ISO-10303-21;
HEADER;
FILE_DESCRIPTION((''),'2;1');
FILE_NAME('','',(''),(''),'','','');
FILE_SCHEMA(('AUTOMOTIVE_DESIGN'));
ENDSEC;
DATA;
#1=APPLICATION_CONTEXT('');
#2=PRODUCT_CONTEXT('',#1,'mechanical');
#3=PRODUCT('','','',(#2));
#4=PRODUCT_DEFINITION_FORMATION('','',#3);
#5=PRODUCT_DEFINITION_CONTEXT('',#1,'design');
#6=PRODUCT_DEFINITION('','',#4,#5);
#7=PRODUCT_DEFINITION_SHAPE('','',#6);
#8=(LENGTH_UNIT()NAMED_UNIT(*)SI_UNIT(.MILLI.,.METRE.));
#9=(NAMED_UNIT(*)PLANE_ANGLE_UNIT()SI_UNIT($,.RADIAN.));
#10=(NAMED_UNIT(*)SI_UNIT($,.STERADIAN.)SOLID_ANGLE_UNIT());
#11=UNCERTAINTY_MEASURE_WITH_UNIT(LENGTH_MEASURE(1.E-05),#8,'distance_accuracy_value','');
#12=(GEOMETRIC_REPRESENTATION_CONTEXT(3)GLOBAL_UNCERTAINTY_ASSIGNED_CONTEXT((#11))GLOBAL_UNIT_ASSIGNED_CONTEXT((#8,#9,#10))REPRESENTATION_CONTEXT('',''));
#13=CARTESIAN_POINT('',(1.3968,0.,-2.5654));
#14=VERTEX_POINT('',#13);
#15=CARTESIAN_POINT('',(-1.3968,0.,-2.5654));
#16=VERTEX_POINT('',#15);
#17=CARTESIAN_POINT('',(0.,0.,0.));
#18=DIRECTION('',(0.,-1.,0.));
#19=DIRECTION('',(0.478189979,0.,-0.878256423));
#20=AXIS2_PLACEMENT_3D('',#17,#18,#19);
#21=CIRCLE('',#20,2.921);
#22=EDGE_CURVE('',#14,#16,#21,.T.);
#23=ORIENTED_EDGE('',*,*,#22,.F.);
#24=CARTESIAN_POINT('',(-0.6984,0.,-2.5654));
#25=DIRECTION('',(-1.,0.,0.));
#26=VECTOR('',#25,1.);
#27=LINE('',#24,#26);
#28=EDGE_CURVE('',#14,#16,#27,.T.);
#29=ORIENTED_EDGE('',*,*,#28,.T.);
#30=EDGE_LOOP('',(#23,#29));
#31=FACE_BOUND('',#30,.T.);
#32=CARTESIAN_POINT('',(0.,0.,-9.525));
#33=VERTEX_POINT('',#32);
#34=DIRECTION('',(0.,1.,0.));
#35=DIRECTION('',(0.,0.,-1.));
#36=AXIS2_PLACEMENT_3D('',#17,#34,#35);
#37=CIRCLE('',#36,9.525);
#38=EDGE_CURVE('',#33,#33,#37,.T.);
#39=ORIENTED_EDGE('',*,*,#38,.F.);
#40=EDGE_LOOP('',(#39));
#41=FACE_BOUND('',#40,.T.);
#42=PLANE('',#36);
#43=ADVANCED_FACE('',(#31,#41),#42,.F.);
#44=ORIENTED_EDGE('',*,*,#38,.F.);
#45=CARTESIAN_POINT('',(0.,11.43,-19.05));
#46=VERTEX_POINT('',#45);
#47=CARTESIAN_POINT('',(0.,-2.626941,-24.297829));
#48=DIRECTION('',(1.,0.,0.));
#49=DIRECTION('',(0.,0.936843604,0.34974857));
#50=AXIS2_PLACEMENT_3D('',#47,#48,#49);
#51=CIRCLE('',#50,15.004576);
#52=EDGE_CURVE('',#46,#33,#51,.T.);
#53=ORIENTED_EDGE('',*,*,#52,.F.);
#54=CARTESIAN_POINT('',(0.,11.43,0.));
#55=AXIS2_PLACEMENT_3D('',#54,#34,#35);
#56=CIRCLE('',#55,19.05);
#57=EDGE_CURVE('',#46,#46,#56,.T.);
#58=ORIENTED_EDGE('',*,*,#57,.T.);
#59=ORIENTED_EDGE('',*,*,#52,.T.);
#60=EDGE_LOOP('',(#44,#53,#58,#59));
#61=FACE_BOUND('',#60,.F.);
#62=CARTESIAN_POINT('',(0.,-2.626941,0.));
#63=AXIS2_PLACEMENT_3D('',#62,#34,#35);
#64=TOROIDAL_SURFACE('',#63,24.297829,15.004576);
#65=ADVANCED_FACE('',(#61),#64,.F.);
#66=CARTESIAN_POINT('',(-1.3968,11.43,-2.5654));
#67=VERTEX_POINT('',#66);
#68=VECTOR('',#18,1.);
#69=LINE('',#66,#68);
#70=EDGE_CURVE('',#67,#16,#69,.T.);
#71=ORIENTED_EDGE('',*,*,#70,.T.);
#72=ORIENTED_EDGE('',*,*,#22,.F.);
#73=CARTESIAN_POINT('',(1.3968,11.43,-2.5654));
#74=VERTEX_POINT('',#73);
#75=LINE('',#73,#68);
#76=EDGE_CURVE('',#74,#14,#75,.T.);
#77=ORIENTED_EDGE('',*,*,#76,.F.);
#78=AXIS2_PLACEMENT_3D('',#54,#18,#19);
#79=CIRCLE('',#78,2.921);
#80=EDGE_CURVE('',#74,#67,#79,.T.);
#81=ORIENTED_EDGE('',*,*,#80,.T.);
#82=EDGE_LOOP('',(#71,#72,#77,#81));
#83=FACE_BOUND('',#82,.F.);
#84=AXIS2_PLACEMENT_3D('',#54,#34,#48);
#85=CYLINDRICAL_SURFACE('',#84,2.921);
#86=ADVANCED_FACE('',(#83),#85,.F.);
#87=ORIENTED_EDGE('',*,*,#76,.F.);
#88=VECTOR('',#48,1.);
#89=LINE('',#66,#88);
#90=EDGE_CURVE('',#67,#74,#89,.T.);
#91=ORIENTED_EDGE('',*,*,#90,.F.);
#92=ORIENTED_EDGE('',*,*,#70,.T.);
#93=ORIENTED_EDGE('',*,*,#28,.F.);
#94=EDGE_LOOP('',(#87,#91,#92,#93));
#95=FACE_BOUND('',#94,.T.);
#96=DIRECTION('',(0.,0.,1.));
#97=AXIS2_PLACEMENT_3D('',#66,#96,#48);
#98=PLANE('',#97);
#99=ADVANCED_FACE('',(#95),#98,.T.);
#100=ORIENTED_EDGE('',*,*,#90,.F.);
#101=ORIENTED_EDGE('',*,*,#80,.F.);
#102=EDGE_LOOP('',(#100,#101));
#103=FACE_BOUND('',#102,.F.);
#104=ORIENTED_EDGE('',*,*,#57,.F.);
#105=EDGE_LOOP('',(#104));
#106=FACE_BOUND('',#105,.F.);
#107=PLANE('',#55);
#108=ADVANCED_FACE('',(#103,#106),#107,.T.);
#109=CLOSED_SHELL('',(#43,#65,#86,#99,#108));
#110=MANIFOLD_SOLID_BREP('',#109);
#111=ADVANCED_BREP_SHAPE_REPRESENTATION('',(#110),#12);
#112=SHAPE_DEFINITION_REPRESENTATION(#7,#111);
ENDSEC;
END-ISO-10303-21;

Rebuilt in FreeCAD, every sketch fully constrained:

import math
import FreeCAD as App
import Part
import Sketcher

V = App.Vector
Q = App.Units.Quantity

doc = App.newDocument("Part")
body = doc.addObject("PartDesign::Body", "Body")

# Sketch on YZ plane
sketch1 = body.newObject("Sketcher::SketchObject", "Sketch")
sketch1.AttachmentSupport = (doc.getObject("YZ_Plane"), [""])
sketch1.MapMode = "FlatFace"
sketch1.addGeometry(Part.LineSegment(V(11, 0, 0), V(0, 0, 0)), False)
sketch1.addGeometry(Part.LineSegment(V(0, 0, 0), V(0, -10, 0)), False)
sketch1.addGeometry(Part.ArcOfCircle(Part.Circle(V(-3, -24, 0), V(0, 0, 1), 15), math.radians(20), math.radians(80)), False)
sketch1.addGeometry(Part.LineSegment(V(11, -19, 0), V(11, 0, 0)), False)
sketch1.addConstraint(Sketcher.Constraint("Coincident", 0, 2, 1, 1))
sketch1.addConstraint(Sketcher.Constraint("Coincident", 1, 2, 2, 2))
sketch1.addConstraint(Sketcher.Constraint("Coincident", 2, 1, 3, 1))
sketch1.addConstraint(Sketcher.Constraint("Coincident", 3, 2, 0, 1))
sketch1.addConstraint(Sketcher.Constraint("Horizontal", 0))
sketch1.addConstraint(Sketcher.Constraint("Vertical", 1))
sketch1.addConstraint(Sketcher.Constraint("Vertical", 3))
sketch1.addConstraint(Sketcher.Constraint("Coincident", 0, 2, -1, 1))
sketch1.addConstraint(Sketcher.Constraint("DistanceX", 0, 2, 0, 1, Q("0.45 in")))
sketch1.addConstraint(Sketcher.Constraint("DistanceY", 3, 1, 3, 2, Q("0.75 in")))
sketch1.addConstraint(Sketcher.Constraint("DistanceY", 1, 2, 1, 1, Q("0.375 in")))
sketch1.addConstraint(Sketcher.Constraint("Radius", 2, 15.0045))
revolution = body.newObject("PartDesign::Revolution", "Revolution")
revolution.Profile = sketch1
revolution.ReferenceAxis = (sketch1, ["H_Axis"])
revolution.Angle = 360

# Sketch on XZ plane
sketch2 = body.newObject("Sketcher::SketchObject", "Sketch001")
sketch2.AttachmentSupport = (doc.getObject("XZ_Plane"), [""])
sketch2.MapMode = "FlatFace"
sketch2.AttachmentOffset = App.Placement(V(0, 0, -0.45 * 25.4), App.Rotation())
sketch2.addGeometry(Part.ArcOfCircle(Part.Circle(V(0, 0, 0), V(0, 0, 1), 2.9), math.radians(-61), math.radians(241)), False)
sketch2.addGeometry(Part.LineSegment(V(-1.4, -2.6, 0), V(1.4, -2.6, 0)), False)
sketch2.addConstraint(Sketcher.Constraint("Coincident", 0, 1, 1, 2))
sketch2.addConstraint(Sketcher.Constraint("Coincident", 1, 1, 0, 2))
sketch2.addConstraint(Sketcher.Constraint("Horizontal", 1))
sketch2.addConstraint(Sketcher.Constraint("Coincident", 0, 3, -1, 1))
sketch2.addConstraint(Sketcher.Constraint("Radius", 0, Q("0.115 in")))
sketch2.addConstraint(Sketcher.Constraint("DistanceY", 0, 1, -1, 1, Q("0.101 in")))
pocket1 = body.newObject("PartDesign::Pocket", "Pocket")
pocket1.Profile = sketch2
pocket1.Type = "ThroughAll"
pocket1.Reversed = True

doc.recompute()
